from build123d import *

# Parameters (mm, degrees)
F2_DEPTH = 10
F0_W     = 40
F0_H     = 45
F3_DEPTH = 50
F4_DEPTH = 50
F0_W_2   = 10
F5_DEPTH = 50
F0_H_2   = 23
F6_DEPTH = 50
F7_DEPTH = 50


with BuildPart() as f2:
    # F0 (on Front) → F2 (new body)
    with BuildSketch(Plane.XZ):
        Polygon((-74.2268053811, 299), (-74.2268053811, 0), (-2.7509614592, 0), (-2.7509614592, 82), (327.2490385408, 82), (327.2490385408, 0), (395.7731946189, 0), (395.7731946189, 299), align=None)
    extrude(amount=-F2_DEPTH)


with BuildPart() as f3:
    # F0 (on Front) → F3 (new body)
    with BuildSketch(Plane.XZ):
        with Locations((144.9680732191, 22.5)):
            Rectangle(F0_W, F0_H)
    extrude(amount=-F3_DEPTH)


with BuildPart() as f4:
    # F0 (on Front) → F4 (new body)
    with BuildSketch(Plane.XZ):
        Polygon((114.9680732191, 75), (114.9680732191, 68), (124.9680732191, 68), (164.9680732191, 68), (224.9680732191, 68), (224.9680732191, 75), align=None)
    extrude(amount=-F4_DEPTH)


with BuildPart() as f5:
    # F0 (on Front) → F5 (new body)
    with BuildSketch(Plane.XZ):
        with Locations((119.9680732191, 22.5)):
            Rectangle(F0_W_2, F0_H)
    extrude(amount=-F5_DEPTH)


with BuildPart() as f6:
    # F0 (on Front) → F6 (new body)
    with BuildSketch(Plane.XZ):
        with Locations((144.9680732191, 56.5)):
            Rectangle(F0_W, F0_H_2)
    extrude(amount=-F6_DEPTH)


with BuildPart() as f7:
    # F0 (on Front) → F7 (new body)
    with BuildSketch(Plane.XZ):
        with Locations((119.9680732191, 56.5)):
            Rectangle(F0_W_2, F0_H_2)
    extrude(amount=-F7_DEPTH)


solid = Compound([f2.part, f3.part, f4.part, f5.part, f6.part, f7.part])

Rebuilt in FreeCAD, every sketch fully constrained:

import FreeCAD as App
import Part
import Sketcher
Q = App.Units.Quantity


def add_polygon(sketch, points):
    """Adds a closed chain of lines whose ends are joined by coincident constraints."""
    first, n = sketch.GeometryCount, len(points)
    for a, b in zip(points, points[1:] + points[:1]):
        sketch.addGeometry(Part.LineSegment(App.Vector(*a, 0), App.Vector(*b, 0)), False)
    for i in range(n):
        sketch.addConstraint(Sketcher.Constraint("Coincident", first + i, 2, first + (i + 1) % n, 1))

doc = App.newDocument("Part")
params = doc.addObject("Spreadsheet::Sheet", "Params")
for row, (alias, value) in enumerate([
    ("sketch1_width", "330 mm"),
    ("sketch1_width2", "470 mm"),
    ("sketch1_height", "299 mm"),
    ("sketch1_height2", "82 mm"),
    ("pad1_length", "10 mm"),
    ("sketch2_width", "40 mm"),
    ("sketch2_height", "45 mm"),
    ("pad2_length", "50 mm"),
    ("sketch3_width", "110 mm"),
    ("sketch3_height", "7 mm"),
    ("pad3_length", "50 mm"),
    ("sketch4_width", "10 mm"),
    ("sketch4_height", "45 mm"),
    ("pad4_length", "50 mm"),
    ("sketch5_width", "40 mm"),
    ("sketch5_height", "23 mm"),
    ("pad5_length", "50 mm"),
    ("sketch6_width", "10 mm"),
    ("sketch6_height", "23 mm"),
    ("pad6_length", "50 mm"),
], start=1):
    params.set(f"A{row}", alias)
    params.set(f"B{row}", "=" + value)
    params.setAlias(f"B{row}", alias)

body = doc.addObject("PartDesign::Body", "Body")

# Sketch on XZ plane
sketch1 = body.newObject("Sketcher::SketchObject", "Sketch")
sketch1.AttachmentSupport = (doc.getObject("XZ_Plane"), [""])
sketch1.MapMode = "FlatFace"
add_polygon(sketch1, [(-74.226805, 299), (-74.226805, 0), (-2.750961, 0), (-2.750961, 82), (327.249039, 82), (327.249039, 0), (395.773195, 0), (395.773195, 299)])  # lines 0-7
sketch1.addConstraint(Sketcher.Constraint("Vertical", 0))
sketch1.addConstraint(Sketcher.Constraint("Horizontal", 1))
sketch1.addConstraint(Sketcher.Constraint("Vertical", 2))
sketch1.addConstraint(Sketcher.Constraint("Horizontal", 3))
sketch1.addConstraint(Sketcher.Constraint("Vertical", 4))
sketch1.addConstraint(Sketcher.Constraint("Horizontal", 5))
sketch1.addConstraint(Sketcher.Constraint("Vertical", 6))
sketch1.addConstraint(Sketcher.Constraint("Horizontal", 7))
sketch1.addConstraint(Sketcher.Constraint("PointOnObject", 0, 2, -1))
sketch1.addConstraint(Sketcher.Constraint("PointOnObject", 4, 2, -1))
sketch1.addConstraint(Sketcher.Constraint("DistanceX", 3, 1, 3, 2, Q("330 mm")))
sketch1.addConstraint(Sketcher.Constraint("DistanceX", 7, 2, 7, 1, Q("470 mm")))
sketch1.addConstraint(Sketcher.Constraint("DistanceY", 0, 2, 0, 1, Q("299 mm")))
sketch1.addConstraint(Sketcher.Constraint("DistanceY", 2, 1, 2, 2, Q("82 mm")))
sketch1.addConstraint(Sketcher.Constraint("DistanceX", 1, 1, 1, 2, Q("71.475844 mm")))
sketch1.addConstraint(Sketcher.Constraint("DistanceX", 1, 2, -1, 1, Q("2.750961 mm")))
sketch1.setExpression("Constraints[18]", "Params.sketch1_width")
sketch1.setExpression("Constraints[19]", "Params.sketch1_width2")
sketch1.setExpression("Constraints[20]", "Params.sketch1_height")
sketch1.setExpression("Constraints[21]", "Params.sketch1_height2")
pad1 = body.newObject("PartDesign::Pad", "Pad")
pad1.Profile = sketch1
pad1.setExpression("Length", "Params.pad1_length")
pad1.Reversed = True
body2 = doc.addObject("PartDesign::Body", "Body001")

# Sketch on XZ plane
sketch2 = body2.newObject("Sketcher::SketchObject", "Sketch001")
sketch2.AttachmentSupport = (doc.getObject("XZ_Plane001"), [""])
sketch2.MapMode = "FlatFace"
add_polygon(sketch2, [(124.968073, 45), (124.968073, 0), (164.968073, 0), (164.968073, 45)])  # lines 0-3
sketch2.addConstraint(Sketcher.Constraint("Vertical", 0))
sketch2.addConstraint(Sketcher.Constraint("Horizontal", 1))
sketch2.addConstraint(Sketcher.Constraint("Vertical", 2))
sketch2.addConstraint(Sketcher.Constraint("Horizontal", 3))
sketch2.addConstraint(Sketcher.Constraint("PointOnObject", 0, 2, -1))
sketch2.addConstraint(Sketcher.Constraint("DistanceX", 1, 1, 1, 2, Q("40 mm")))
sketch2.addConstraint(Sketcher.Constraint("DistanceY", 0, 2, 0, 1, Q("45 mm")))
sketch2.addConstraint(Sketcher.Constraint("DistanceX", -1, 1, 0, 2, Q("124.968073 mm")))
sketch2.setExpression("Constraints[9]", "Params.sketch2_width")
sketch2.setExpression("Constraints[10]", "Params.sketch2_height")
pad2 = body2.newObject("PartDesign::Pad", "Pad001")
pad2.Profile = sketch2
pad2.setExpression("Length", "Params.pad2_length")
pad2.Reversed = True
body3 = doc.addObject("PartDesign::Body", "Body002")

# Sketch on XZ plane
sketch3 = body3.newObject("Sketcher::SketchObject", "Sketch002")
sketch3.AttachmentSupport = (doc.getObject("XZ_Plane002"), [""])
sketch3.MapMode = "FlatFace"
add_polygon(sketch3, [(114.968073, 75), (114.968073, 68), (224.968073, 68), (224.968073, 75)])  # lines 0-3
sketch3.addConstraint(Sketcher.Constraint("Vertical", 0))
sketch3.addConstraint(Sketcher.Constraint("Horizontal", 1))
sketch3.addConstraint(Sketcher.Constraint("Vertical", 2))
sketch3.addConstraint(Sketcher.Constraint("Horizontal", 3))
sketch3.addConstraint(Sketcher.Constraint("DistanceX", 1, 1, 1, 2, Q("110 mm")))
sketch3.addConstraint(Sketcher.Constraint("DistanceY", 0, 2, 0, 1, Q("7 mm")))
sketch3.addConstraint(Sketcher.Constraint("DistanceY", -1, 1, 0, 2, Q("68 mm")))
sketch3.addConstraint(Sketcher.Constraint("DistanceX", -1, 1, 0, 2, Q("114.968073 mm")))
sketch3.setExpression("Constraints[8]", "Params.sketch3_width")
sketch3.setExpression("Constraints[9]", "Params.sketch3_height")
pad3 = body3.newObject("PartDesign::Pad", "Pad002")
pad3.Profile = sketch3
pad3.setExpression("Length", "Params.pad3_length")
pad3.Reversed = True
body4 = doc.addObject("PartDesign::Body", "Body003")

# Sketch on XZ plane
sketch4 = body4.newObject("Sketcher::SketchObject", "Sketch003")
sketch4.AttachmentSupport = (doc.getObject("XZ_Plane003"), [""])
sketch4.MapMode = "FlatFace"
add_polygon(sketch4, [(114.968073, 45), (114.968073, 0), (124.968073, 0), (124.968073, 45)])  # lines 0-3
sketch4.addConstraint(Sketcher.Constraint("Vertical", 0))
sketch4.addConstraint(Sketcher.Constraint("Horizontal", 1))
sketch4.addConstraint(Sketcher.Constraint("Vertical", 2))
sketch4.addConstraint(Sketcher.Constraint("Horizontal", 3))
sketch4.addConstraint(Sketcher.Constraint("PointOnObject", 0, 2, -1))
sketch4.addConstraint(Sketcher.Constraint("DistanceX", 1, 1, 1, 2, Q("10 mm")))
sketch4.addConstraint(Sketcher.Constraint("DistanceY", 0, 2, 0, 1, Q("45 mm")))
sketch4.addConstraint(Sketcher.Constraint("DistanceX", -1, 1, 0, 2, Q("114.968073 mm")))
sketch4.setExpression("Constraints[9]", "Params.sketch4_width")
sketch4.setExpression("Constraints[10]", "Params.sketch4_height")
pad4 = body4.newObject("PartDesign::Pad", "Pad003")
pad4.Profile = sketch4
pad4.setExpression("Length", "Params.pad4_length")
pad4.Reversed = True
body5 = doc.addObject("PartDesign::Body", "Body004")

# Sketch on XZ plane
sketch5 = body5.newObject("Sketcher::SketchObject", "Sketch004")
sketch5.AttachmentSupport = (doc.getObject("XZ_Plane004"), [""])
sketch5.MapMode = "FlatFace"
add_polygon(sketch5, [(124.968073, 68), (124.968073, 45), (164.968073, 45), (164.968073, 68)])  # lines 0-3
sketch5.addConstraint(Sketcher.Constraint("Vertical", 0))
sketch5.addConstraint(Sketcher.Constraint("Horizontal", 1))
sketch5.addConstraint(Sketcher.Constraint("Vertical", 2))
sketch5.addConstraint(Sketcher.Constraint("Horizontal", 3))
sketch5.addConstraint(Sketcher.Constraint("DistanceX", 1, 1, 1, 2, Q("40 mm")))
sketch5.addConstraint(Sketcher.Constraint("DistanceY", 0, 2, 0, 1, Q("23 mm")))
sketch5.addConstraint(Sketcher.Constraint("DistanceY", -1, 1, 0, 2, Q("45 mm")))
sketch5.addConstraint(Sketcher.Constraint("DistanceX", -1, 1, 0, 2, Q("124.968073 mm")))
sketch5.setExpression("Constraints[8]", "Params.sketch5_width")
sketch5.setExpression("Constraints[9]", "Params.sketch5_height")
pad5 = body5.newObject("PartDesign::Pad", "Pad004")
pad5.Profile = sketch5
pad5.setExpression("Length", "Params.pad5_length")
pad5.Reversed = True
body6 = doc.addObject("PartDesign::Body", "Body005")

# Sketch on XZ plane
sketch6 = body6.newObject("Sketcher::SketchObject", "Sketch005")
sketch6.AttachmentSupport = (doc.getObject("XZ_Plane005"), [""])
sketch6.MapMode = "FlatFace"
add_polygon(sketch6, [(114.968073, 68), (114.968073, 45), (124.968073, 45), (124.968073, 68)])  # lines 0-3
sketch6.addConstraint(Sketcher.Constraint("Vertical", 0))
sketch6.addConstraint(Sketcher.Constraint("Horizontal", 1))
sketch6.addConstraint(Sketcher.Constraint("Vertical", 2))
sketch6.addConstraint(Sketcher.Constraint("Horizontal", 3))
sketch6.addConstraint(Sketcher.Constraint("DistanceX", 1, 1, 1, 2, Q("10 mm")))
sketch6.addConstraint(Sketcher.Constraint("DistanceY", 0, 2, 0, 1, Q("23 mm")))
sketch6.addConstraint(Sketcher.Constraint("DistanceY", -1, 1, 0, 2, Q("45 mm")))
sketch6.addConstraint(Sketcher.Constraint("DistanceX", -1, 1, 0, 2, Q("114.968073 mm")))
sketch6.setExpression("Constraints[8]", "Params.sketch6_width")
sketch6.setExpression("Constraints[9]", "Params.sketch6_height")
pad6 = body6.newObject("PartDesign::Pad", "Pad005")
pad6.Profile = sketch6
pad6.setExpression("Length", "Params.pad6_length")
pad6.Reversed = True

doc.recompute()
